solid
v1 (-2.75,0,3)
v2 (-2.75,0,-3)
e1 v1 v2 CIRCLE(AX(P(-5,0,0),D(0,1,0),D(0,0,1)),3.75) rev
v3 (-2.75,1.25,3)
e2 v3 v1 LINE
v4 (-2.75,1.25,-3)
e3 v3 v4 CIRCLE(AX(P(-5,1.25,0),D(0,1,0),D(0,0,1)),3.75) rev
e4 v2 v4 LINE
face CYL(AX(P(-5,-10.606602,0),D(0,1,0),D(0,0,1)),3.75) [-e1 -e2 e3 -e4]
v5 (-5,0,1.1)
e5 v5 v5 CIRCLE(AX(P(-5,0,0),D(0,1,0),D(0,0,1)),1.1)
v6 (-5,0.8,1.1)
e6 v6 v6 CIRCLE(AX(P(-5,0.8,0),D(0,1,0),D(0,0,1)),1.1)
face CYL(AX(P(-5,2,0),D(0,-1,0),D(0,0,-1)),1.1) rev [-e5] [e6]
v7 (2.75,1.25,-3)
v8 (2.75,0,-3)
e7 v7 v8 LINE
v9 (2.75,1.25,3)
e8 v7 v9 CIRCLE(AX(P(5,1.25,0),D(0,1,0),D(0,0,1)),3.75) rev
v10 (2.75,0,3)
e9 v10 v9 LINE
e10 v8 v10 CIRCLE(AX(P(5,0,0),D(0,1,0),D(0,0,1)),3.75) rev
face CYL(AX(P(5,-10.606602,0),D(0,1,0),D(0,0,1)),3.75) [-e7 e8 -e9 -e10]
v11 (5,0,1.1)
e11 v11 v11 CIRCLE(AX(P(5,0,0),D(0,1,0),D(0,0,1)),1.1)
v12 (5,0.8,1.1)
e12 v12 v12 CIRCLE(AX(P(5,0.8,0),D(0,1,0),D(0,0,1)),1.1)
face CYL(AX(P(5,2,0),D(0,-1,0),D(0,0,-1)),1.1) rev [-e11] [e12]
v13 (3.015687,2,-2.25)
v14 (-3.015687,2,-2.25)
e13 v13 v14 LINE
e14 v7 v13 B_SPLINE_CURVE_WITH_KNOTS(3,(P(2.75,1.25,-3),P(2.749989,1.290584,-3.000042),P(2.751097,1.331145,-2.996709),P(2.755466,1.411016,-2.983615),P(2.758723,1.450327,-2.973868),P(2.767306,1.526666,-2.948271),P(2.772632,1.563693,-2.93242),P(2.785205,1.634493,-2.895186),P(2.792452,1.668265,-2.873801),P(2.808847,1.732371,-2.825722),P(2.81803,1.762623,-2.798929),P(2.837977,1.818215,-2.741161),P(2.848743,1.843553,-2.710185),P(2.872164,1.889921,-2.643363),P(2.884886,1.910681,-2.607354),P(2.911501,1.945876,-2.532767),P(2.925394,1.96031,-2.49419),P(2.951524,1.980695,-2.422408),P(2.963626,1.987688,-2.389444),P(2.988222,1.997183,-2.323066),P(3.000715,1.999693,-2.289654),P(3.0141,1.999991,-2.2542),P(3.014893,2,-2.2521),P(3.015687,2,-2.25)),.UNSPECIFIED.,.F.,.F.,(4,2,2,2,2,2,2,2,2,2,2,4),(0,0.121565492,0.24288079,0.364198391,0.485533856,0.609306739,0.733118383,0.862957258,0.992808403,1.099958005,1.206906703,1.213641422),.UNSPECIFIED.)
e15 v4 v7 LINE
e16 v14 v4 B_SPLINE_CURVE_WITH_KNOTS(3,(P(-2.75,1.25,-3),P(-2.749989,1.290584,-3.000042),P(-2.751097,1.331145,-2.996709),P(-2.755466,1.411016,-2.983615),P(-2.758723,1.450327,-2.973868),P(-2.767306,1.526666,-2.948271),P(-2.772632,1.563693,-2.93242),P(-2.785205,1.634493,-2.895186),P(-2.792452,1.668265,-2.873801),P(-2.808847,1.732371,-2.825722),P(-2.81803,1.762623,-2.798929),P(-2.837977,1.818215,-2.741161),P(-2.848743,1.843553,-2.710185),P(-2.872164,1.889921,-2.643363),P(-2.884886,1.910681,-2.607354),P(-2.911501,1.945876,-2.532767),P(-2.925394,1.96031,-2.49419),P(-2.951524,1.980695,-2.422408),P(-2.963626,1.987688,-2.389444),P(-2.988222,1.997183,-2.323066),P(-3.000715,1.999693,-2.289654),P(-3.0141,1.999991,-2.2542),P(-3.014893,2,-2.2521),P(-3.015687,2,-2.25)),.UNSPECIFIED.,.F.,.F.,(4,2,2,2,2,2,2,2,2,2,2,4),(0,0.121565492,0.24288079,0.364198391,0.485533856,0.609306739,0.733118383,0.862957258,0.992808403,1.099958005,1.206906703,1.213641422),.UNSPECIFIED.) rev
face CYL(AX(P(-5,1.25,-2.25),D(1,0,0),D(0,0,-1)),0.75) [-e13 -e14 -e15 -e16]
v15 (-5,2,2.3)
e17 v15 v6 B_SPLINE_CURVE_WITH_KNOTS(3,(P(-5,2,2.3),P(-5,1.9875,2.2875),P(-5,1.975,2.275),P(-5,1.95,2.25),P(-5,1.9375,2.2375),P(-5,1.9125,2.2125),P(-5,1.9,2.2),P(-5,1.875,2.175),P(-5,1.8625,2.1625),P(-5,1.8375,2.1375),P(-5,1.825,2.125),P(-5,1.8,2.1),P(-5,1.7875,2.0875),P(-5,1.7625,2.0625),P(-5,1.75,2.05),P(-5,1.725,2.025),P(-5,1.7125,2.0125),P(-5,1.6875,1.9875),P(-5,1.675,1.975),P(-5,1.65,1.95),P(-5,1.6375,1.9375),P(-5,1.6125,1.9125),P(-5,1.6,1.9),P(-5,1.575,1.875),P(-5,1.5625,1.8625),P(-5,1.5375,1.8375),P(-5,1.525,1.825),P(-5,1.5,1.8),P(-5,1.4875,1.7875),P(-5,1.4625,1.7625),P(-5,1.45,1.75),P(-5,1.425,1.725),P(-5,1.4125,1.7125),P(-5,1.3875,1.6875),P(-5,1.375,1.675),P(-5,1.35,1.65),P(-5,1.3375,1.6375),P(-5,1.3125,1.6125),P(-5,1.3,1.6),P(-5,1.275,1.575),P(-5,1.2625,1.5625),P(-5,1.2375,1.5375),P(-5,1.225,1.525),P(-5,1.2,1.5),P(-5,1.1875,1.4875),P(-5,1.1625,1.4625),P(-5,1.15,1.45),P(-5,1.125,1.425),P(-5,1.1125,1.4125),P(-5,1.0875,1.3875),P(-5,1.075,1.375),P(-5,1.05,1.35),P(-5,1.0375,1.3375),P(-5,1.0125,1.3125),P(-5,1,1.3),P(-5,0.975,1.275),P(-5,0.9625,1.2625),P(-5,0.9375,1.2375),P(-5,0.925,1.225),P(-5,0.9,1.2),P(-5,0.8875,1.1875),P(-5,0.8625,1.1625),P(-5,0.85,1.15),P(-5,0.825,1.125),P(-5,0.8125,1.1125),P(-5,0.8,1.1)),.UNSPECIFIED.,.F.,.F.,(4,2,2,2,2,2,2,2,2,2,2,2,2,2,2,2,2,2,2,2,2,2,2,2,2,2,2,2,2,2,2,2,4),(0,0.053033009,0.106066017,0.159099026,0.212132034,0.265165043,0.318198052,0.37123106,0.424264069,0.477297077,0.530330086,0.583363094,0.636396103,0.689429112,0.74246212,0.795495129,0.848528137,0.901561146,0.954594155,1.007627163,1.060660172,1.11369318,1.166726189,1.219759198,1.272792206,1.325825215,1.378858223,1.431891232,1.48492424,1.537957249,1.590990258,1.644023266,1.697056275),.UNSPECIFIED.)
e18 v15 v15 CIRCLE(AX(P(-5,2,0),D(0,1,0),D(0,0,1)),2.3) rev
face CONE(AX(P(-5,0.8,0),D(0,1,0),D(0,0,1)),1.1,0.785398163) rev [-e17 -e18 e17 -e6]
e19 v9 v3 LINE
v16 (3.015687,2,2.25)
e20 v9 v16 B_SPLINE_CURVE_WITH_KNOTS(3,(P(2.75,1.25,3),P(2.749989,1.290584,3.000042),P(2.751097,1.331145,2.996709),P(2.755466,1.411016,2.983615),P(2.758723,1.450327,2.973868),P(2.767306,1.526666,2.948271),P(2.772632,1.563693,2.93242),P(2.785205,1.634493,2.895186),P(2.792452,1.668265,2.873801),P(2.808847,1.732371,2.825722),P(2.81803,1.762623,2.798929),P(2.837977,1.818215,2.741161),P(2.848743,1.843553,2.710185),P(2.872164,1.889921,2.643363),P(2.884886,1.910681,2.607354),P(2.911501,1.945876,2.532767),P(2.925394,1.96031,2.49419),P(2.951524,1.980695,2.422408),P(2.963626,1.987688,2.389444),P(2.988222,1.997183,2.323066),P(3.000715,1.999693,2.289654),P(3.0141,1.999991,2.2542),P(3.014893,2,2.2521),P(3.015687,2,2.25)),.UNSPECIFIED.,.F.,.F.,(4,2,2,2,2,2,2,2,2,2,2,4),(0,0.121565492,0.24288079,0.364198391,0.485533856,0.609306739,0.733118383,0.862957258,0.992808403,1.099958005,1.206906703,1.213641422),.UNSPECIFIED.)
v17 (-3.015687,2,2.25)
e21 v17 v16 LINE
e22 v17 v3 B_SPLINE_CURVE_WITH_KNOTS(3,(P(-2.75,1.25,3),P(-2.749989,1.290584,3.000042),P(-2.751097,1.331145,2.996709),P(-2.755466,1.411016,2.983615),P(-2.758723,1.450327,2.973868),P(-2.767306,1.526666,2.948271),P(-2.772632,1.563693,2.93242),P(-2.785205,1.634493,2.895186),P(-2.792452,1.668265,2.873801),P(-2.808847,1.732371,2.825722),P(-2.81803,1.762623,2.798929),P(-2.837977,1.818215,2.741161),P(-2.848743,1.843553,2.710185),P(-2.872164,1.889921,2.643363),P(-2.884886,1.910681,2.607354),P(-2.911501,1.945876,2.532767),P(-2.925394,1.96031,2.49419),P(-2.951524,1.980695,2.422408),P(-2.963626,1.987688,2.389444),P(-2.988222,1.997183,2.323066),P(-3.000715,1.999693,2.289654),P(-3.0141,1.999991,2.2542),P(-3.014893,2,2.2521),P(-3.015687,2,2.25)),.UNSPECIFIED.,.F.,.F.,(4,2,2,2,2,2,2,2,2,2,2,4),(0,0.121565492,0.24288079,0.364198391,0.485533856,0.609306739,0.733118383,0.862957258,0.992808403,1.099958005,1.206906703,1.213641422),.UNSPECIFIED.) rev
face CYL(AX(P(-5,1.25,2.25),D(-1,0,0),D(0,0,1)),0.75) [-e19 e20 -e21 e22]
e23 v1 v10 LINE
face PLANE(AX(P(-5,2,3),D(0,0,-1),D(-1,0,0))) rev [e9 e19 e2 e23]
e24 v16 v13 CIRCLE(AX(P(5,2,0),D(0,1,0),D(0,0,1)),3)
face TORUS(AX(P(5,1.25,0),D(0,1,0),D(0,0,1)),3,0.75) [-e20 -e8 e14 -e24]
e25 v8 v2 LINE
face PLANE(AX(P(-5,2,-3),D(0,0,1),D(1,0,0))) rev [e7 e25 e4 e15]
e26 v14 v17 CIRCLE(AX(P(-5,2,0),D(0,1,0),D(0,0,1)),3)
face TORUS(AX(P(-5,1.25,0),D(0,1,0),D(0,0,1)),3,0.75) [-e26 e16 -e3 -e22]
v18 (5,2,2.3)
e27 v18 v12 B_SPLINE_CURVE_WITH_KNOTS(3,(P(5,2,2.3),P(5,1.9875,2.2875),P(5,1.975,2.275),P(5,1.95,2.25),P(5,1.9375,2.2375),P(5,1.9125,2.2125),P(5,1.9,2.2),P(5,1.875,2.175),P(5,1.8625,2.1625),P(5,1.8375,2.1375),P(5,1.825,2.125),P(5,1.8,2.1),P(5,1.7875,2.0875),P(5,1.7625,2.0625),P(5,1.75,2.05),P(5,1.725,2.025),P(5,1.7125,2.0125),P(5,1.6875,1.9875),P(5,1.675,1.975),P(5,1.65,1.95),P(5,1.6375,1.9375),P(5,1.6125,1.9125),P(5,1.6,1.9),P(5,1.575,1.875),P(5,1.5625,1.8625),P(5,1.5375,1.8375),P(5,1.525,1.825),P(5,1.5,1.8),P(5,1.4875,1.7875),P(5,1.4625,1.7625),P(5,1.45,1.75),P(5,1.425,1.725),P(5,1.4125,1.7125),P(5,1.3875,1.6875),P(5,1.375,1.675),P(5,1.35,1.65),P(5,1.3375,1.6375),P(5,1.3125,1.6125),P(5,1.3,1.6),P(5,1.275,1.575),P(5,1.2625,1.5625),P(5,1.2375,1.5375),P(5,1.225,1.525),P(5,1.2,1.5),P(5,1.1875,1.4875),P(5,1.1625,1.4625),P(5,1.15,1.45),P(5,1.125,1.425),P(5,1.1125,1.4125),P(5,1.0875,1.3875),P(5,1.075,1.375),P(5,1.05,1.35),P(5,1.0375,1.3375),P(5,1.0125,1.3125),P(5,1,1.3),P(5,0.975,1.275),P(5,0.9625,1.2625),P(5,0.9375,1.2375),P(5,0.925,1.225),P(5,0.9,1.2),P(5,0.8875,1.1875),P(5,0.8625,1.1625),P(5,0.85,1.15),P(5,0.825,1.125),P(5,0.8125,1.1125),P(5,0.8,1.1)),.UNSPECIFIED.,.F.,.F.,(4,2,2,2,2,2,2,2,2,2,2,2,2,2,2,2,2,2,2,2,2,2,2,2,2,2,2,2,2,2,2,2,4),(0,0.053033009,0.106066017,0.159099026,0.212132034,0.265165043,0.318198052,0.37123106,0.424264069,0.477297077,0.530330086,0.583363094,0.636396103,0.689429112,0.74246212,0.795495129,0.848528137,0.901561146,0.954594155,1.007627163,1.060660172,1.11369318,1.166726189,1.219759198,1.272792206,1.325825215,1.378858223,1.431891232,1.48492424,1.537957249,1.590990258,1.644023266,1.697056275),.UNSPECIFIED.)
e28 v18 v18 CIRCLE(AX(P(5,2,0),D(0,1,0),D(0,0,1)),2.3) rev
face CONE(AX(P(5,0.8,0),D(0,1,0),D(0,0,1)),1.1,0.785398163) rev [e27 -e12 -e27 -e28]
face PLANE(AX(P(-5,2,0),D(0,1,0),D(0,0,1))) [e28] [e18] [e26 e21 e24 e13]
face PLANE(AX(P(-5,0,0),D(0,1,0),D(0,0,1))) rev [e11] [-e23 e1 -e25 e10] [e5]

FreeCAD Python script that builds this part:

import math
import FreeCAD as App
import Part
import Sketcher


def edges_at(feature, points):
    """Names of the edges that pass closest to the given points."""
    edges = feature.Shape.Edges
    near = lambda p: min(range(len(edges)), key=lambda i: edges[i].distToShape(Part.Vertex(*p))[0])
    return sorted({f"Edge{near(p) + 1}" for p in points})

doc = App.newDocument("Part")
body = doc.addObject("PartDesign::Body", "Body")

# Sketch on XZ plane
sketch1 = body.newObject("Sketcher::SketchObject", "Sketch")
sketch1.AttachmentSupport = (doc.getObject("XZ_Plane"), [""])
sketch1.MapMode = "FlatFace"
sketch1.addGeometry([
    Part.LineSegment(App.Vector(5, -3, 0), App.Vector(-5, -3, 0)),  # 0
    Part.ArcOfCircle(Part.Circle(App.Vector(-5, 0, 0), App.Vector(0, 0, 1), 3), math.radians(90), math.radians(270)),  # 1
    Part.LineSegment(App.Vector(-5, 3, 0), App.Vector(5, 3, 0)),  # 2
    Part.ArcOfCircle(Part.Circle(App.Vector(5, 0, 0), App.Vector(0, 0, 1), 3), math.radians(-90), math.radians(90)),  # 3
    Part.Circle(App.Vector(5, 0, 0), App.Vector(0, 0, 1), 1.1),  # 4
    Part.Circle(App.Vector(-5, 0, 0), App.Vector(0, 0, 1), 1.1),  # 5
], False)
sketch1.addConstraint([
    Sketcher.Constraint("Tangent", 0, 2, 1, 2),
    Sketcher.Constraint("Tangent", 1, 1, 2, 1),
    Sketcher.Constraint("Tangent", 2, 2, 3, 2),
    Sketcher.Constraint("Tangent", 3, 1, 0, 1),
    Sketcher.Constraint("Horizontal", 0),
    Sketcher.Constraint("Horizontal", 2),
    Sketcher.Constraint("Coincident", 4, 3, 3, 3),
    Sketcher.Constraint("Coincident", 5, 3, 1, 3),
    Sketcher.Constraint("Equal", 4, 5),
    Sketcher.Constraint("Symmetric", 1, 3, 3, 3, -1, 1),
    Sketcher.Constraint("Radius", 1, 3.0),
    Sketcher.Constraint("Diameter", 4, 2.2),
    Sketcher.Constraint("DistanceX", 0, 2, 0, 1, 10.0),
])
pad1 = body.newObject("PartDesign::Pad", "Pad")
pad1.Profile = sketch1
pad1.Length = 2
pad1.Reversed = True

# Sketch on XZ plane
sketch2 = body.newObject("Sketcher::SketchObject", "Sketch001")
sketch2.AttachmentSupport = (doc.getObject("XZ_Plane"), [""])
sketch2.MapMode = "FlatFace"
sketch2.addGeometry([
    Part.Circle(App.Vector(-5, 0, 0), App.Vector(0, 0, 1), 3.8),
    Part.Circle(App.Vector(-5, 0, 0), App.Vector(0, 0, 1), 1.1),
    Part.Circle(App.Vector(5, 0, 0), App.Vector(0, 0, 1), 3.8),
    Part.Circle(App.Vector(5, 0, 0), App.Vector(0, 0, 1), 1.1),
], False)
sketch2.addConstraint([
    Sketcher.Constraint("Coincident", 1, 3, 0, 3),
    Sketcher.Constraint("Coincident", 3, 3, 2, 3),
    Sketcher.Constraint("Equal", 0, 2),
    Sketcher.Constraint("Equal", 1, 3),
    Sketcher.Constraint("Symmetric", 0, 3, 2, 3, -1, 1),
    Sketcher.Constraint("PointOnObject", 0, 3, -1),
    Sketcher.Constraint("Diameter", 0, 7.5),
    Sketcher.Constraint("Diameter", 1, 2.2),
    Sketcher.Constraint("DistanceX", 0, 3, -1, 1, 5.0),
])
pad2 = body.newObject("PartDesign::Pad", "Pad001")
pad2.Profile = sketch2
pad2.Length = 2
pad2.Reversed = True
doc.recompute()

chamfer = body.newObject("PartDesign::Chamfer", "Chamfer")
chamfer.Base = (pad2, edges_at(pad2, [(-5, 2, -1.1), (5, 2, -1.1)]))
chamfer.Size = 1.2
doc.recompute()

fillet = body.newObject("PartDesign::Fillet", "Fillet")
fillet.Base = (chamfer, edges_at(chamfer, [
    (0, 2, 3),
    (-8.75, 2, 0),
    (0, 2, -3),
    (8.75, 2, 0),
]))
fillet.Radius = 0.75

doc.recompute()
